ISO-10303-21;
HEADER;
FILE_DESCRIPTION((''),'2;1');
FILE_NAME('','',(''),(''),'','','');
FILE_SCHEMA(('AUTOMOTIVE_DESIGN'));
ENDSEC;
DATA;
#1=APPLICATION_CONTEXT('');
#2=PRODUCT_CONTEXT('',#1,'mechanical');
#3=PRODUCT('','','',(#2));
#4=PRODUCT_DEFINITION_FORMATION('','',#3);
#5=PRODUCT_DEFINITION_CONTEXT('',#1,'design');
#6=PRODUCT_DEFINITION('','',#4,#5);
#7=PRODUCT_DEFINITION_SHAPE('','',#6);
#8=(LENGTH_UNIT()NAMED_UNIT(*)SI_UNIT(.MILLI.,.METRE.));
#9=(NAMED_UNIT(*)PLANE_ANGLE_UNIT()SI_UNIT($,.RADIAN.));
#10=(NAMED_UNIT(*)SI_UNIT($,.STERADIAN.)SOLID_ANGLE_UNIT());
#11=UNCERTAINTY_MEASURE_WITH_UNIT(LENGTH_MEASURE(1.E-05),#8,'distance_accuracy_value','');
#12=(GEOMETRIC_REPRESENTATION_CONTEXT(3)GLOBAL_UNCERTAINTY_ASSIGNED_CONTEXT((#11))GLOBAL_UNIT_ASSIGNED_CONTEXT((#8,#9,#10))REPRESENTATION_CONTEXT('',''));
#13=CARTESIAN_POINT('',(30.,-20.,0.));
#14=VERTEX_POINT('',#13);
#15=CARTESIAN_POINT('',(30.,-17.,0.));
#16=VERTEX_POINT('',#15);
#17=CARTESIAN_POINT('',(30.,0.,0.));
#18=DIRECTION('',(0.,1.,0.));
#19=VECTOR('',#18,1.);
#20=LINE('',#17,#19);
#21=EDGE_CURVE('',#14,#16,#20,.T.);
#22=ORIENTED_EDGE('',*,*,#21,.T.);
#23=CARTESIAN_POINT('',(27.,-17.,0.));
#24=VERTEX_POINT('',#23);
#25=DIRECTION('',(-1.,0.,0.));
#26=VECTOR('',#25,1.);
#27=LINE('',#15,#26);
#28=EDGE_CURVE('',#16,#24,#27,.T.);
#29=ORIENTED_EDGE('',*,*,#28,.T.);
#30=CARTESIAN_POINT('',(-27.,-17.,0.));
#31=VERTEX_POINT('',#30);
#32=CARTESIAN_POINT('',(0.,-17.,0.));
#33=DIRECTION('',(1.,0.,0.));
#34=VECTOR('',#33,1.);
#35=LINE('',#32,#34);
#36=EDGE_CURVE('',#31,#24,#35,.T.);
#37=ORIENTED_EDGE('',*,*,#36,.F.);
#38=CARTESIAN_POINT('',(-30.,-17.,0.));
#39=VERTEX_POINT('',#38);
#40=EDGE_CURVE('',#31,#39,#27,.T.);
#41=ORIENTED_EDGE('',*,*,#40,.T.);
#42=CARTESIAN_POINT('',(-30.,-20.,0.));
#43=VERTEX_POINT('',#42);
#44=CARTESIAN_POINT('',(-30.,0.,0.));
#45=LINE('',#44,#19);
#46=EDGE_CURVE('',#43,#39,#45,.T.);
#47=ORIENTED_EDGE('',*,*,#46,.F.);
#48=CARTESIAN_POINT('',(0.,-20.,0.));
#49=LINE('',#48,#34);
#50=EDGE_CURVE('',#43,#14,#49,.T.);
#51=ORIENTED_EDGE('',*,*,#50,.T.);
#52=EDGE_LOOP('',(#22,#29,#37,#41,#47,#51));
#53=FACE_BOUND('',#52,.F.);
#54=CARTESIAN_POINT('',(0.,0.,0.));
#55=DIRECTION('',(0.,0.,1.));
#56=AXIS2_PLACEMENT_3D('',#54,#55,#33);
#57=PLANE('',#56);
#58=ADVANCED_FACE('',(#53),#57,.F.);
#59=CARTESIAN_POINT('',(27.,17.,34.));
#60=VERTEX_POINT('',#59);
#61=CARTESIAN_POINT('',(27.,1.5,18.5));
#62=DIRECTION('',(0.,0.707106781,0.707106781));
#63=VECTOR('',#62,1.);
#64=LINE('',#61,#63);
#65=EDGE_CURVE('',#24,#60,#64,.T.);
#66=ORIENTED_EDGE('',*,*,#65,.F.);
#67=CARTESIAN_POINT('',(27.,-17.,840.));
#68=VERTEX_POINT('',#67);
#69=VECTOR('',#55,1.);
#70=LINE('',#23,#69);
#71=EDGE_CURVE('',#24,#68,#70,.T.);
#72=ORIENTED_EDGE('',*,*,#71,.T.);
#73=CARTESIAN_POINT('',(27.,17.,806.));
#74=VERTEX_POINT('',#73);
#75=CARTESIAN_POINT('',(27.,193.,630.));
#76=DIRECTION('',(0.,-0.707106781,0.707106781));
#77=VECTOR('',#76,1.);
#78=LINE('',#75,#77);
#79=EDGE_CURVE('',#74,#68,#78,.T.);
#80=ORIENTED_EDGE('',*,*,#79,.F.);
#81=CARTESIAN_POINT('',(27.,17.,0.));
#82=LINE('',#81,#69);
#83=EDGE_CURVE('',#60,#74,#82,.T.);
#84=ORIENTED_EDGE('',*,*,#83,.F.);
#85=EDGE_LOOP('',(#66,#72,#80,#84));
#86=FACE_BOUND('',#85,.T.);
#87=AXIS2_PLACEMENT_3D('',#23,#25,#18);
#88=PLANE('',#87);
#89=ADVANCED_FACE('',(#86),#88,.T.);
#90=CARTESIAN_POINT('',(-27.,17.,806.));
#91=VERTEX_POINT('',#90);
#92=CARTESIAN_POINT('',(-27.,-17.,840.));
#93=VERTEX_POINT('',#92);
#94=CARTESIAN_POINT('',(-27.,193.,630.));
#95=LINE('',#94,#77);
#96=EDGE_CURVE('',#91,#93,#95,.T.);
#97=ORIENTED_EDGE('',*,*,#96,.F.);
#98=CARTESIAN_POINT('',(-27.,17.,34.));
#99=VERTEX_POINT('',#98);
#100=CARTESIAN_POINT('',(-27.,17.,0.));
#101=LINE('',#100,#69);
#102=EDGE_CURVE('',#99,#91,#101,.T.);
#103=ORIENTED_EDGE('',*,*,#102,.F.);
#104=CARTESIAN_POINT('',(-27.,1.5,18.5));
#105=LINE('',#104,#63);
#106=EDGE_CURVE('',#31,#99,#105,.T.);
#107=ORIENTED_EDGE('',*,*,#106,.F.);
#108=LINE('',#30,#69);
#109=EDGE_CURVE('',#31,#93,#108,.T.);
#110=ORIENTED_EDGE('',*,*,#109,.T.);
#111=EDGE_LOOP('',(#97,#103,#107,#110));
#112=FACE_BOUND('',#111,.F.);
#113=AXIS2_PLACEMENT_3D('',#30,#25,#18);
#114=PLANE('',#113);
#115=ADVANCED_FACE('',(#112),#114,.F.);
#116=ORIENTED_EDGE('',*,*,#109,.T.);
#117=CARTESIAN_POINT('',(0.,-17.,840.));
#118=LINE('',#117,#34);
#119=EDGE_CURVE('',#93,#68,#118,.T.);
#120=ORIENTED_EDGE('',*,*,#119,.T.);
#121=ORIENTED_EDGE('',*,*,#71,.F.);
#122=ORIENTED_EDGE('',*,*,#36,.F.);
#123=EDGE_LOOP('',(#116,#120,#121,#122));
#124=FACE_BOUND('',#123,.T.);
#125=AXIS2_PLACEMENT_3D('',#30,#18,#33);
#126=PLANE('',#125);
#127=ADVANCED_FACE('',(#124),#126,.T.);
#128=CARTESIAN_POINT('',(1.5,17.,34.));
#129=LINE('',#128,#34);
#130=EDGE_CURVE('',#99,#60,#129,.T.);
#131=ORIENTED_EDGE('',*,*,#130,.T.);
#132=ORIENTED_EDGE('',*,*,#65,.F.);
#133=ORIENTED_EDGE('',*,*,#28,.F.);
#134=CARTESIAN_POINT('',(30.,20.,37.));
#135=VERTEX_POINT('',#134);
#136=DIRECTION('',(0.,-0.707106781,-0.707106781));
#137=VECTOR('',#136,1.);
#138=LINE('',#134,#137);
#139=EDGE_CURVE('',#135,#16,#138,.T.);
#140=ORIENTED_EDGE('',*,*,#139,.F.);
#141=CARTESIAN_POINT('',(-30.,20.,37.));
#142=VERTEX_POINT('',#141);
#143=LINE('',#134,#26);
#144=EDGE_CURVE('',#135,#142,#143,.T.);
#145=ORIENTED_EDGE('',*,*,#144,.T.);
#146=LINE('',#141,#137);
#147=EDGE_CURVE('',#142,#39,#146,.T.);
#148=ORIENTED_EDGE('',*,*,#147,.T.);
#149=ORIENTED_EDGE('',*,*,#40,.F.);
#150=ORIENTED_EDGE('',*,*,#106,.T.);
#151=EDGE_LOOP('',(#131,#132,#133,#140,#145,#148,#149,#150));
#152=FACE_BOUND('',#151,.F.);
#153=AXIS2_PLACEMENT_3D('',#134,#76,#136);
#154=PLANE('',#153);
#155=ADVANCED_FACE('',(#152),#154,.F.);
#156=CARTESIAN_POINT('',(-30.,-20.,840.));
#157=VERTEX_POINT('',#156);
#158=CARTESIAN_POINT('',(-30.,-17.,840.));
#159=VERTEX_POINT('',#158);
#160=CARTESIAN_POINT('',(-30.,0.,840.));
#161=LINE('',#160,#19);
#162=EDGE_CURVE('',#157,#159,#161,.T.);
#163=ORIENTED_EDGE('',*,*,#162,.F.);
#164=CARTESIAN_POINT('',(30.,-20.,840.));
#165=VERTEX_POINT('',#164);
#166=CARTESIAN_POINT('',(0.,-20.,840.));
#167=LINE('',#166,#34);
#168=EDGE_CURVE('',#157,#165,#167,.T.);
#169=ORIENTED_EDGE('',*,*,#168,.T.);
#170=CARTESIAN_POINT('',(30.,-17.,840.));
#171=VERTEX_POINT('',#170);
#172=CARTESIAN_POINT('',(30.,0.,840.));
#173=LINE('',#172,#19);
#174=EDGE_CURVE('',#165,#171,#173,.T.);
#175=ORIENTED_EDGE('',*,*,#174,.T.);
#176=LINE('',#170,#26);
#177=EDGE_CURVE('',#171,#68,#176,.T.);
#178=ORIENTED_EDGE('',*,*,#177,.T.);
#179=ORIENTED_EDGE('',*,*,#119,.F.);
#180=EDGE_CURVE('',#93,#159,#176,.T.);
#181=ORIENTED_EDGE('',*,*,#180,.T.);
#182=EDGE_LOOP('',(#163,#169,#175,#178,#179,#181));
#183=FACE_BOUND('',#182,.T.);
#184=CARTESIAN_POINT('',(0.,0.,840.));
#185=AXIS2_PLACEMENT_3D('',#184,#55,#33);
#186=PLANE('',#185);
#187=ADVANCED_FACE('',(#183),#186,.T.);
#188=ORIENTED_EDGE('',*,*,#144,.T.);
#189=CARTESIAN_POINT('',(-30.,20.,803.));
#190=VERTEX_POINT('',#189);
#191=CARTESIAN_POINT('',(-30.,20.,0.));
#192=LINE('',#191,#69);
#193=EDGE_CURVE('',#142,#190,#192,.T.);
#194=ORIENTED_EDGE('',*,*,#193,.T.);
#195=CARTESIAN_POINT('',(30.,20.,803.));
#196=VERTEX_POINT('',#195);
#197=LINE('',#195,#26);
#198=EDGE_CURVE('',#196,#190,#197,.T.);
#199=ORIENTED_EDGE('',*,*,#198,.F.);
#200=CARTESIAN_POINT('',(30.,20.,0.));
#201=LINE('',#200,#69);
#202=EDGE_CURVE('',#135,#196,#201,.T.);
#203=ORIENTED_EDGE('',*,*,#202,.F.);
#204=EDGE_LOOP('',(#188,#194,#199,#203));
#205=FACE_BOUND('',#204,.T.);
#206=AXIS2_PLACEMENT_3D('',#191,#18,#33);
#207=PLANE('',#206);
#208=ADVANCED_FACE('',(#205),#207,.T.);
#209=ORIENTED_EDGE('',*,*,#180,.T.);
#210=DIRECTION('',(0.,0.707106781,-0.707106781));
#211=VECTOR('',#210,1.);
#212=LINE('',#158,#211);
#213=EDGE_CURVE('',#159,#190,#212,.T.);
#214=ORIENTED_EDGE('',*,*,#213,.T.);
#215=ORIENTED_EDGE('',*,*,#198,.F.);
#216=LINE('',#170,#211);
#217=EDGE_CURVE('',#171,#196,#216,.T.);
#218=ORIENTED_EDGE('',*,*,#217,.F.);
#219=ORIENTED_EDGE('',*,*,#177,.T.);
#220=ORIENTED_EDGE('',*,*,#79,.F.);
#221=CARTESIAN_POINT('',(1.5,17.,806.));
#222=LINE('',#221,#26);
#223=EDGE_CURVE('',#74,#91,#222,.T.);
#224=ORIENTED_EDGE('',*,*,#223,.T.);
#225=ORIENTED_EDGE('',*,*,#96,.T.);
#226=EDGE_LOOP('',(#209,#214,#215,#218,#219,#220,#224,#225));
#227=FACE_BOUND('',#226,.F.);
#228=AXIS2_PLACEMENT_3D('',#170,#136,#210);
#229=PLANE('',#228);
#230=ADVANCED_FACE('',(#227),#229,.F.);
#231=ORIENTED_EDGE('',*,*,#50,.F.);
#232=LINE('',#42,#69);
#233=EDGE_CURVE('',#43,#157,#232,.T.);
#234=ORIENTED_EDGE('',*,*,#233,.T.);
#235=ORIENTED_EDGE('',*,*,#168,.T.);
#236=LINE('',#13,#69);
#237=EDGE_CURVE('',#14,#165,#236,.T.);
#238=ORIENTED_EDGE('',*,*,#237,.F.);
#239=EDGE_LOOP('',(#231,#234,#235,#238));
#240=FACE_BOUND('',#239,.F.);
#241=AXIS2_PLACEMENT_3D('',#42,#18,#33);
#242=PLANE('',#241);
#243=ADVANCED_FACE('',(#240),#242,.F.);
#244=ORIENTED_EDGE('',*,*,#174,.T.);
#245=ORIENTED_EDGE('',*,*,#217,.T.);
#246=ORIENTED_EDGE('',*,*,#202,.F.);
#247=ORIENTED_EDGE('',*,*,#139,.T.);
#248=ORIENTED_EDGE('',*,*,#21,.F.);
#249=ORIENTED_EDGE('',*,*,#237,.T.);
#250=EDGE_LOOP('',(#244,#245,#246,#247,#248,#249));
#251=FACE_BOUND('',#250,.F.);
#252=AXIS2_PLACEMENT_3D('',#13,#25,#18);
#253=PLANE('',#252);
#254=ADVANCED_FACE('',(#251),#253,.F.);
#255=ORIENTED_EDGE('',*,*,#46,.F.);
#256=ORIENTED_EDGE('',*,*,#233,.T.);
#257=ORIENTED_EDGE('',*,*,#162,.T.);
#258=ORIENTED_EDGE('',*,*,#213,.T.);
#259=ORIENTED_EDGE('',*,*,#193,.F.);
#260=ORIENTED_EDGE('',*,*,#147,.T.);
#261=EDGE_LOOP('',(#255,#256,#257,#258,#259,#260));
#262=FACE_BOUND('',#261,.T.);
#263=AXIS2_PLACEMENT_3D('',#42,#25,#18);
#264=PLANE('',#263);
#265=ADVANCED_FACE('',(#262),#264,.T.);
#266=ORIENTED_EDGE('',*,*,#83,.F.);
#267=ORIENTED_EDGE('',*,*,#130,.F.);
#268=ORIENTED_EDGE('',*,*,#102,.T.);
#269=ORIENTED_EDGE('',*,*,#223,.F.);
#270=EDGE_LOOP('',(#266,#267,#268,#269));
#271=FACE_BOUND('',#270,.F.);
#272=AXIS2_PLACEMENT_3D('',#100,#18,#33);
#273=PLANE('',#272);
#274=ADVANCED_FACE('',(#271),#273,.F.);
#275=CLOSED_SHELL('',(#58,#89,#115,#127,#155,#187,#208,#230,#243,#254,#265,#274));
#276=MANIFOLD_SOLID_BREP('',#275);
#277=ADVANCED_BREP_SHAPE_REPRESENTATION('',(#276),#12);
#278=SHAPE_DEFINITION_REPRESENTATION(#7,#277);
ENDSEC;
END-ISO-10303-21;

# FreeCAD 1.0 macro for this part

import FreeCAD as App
import Part
import Sketcher

V = App.Vector


def add_polygon(sketch, points):
    """Adds a closed chain of lines whose ends are joined by coincident constraints."""
    first, n = sketch.GeometryCount, len(points)
    for a, b in zip(points, points[1:] + points[:1]):
        sketch.addGeometry(Part.LineSegment(App.Vector(*a, 0), App.Vector(*b, 0)), False)
    for i in range(n):
        sketch.addConstraint(Sketcher.Constraint("Coincident", first + i, 2, first + (i + 1) % n, 1))

doc = App.newDocument("Part")
body = doc.addObject("PartDesign::Body", "Body")

sketch1 = body.newObject("Sketcher::SketchObject", "Sketch")
sketch1.AttachmentSupport = (doc.getObject("XY_Plane"), [""])
sketch1.MapMode = "FlatFace"
add_polygon(sketch1, [(-30, 20), (-30, -20), (30, -20), (30, 20)])
add_polygon(sketch1, [(27, -17), (-27, -17), (-27, 17), (27, 17)])
sketch1.addConstraint([
    Sketcher.Constraint("Vertical", 0),
    Sketcher.Constraint("Horizontal", 1),
    Sketcher.Constraint("Vertical", 2),
    Sketcher.Constraint("Horizontal", 3),
    Sketcher.Constraint("Horizontal", 4),
    Sketcher.Constraint("Vertical", 5),
    Sketcher.Constraint("Horizontal", 6),
    Sketcher.Constraint("Vertical", 7),
    Sketcher.Constraint("Symmetric", 0, 2, 2, 2, -1, 1),
    Sketcher.Constraint("Symmetric", 4, 2, 6, 2, -1, 1),
    Sketcher.Constraint("DistanceX", 1, 1, 1, 2, 60.0),
    Sketcher.Constraint("DistanceX", 4, 2, 4, 1, 54.0),
    Sketcher.Constraint("DistanceY", 0, 2, 0, 1, 40.0),
    Sketcher.Constraint("DistanceY", 5, 1, 5, 2, 34.0),
])
pad1 = body.newObject("PartDesign::Pad", "Pad")
pad1.Profile = sketch1
pad1.Length = 840

sketch2 = body.newObject("Sketcher::SketchObject", "Sketch001")
sketch2.AttachmentSupport = (doc.getObject("YZ_Plane"), [""])
sketch2.MapMode = "FlatFace"
sketch2.AttachmentOffset = App.Placement(V(0, 0, 30), App.Rotation())
add_polygon(sketch2, [(20, 840), (-17, 840), (20, 803)])
add_polygon(sketch2, [(-17, 0), (20, 0), (20, 37)])
sketch2.addConstraint([
    Sketcher.Constraint("Horizontal", 0),
    Sketcher.Constraint("Vertical", 2),
    Sketcher.Constraint("Horizontal", 3),
    Sketcher.Constraint("Vertical", 4),
    Sketcher.Constraint("PointOnObject", 3, 2, -1),
    Sketcher.Constraint("Perpendicular", 1, 5),
    Sketcher.Constraint("Vertical", 2, 2, 3, 2),
    Sketcher.Constraint("Vertical", 0, 2, 5, 2),
    Sketcher.Constraint("Equal", 3, 2),
    Sketcher.Constraint("DistanceX", 0, 2, 0, 1, 37.0),
    Sketcher.Constraint("DistanceX", 0, 2, -1, 1, 17.0),
    Sketcher.Constraint("DistanceY", -1, 1, 0, 2, 840.0),
])
pocket1 = body.newObject("PartDesign::Pocket", "Pocket")
pocket1.Profile = sketch2
pocket1.Length = 60

sketch3 = body.newObject("Sketcher::SketchObject", "Sketch002")
sketch3.AttachmentSupport = (doc.getObject("YZ_Plane"), [""])
sketch3.MapMode = "FlatFace"
sketch3.AttachmentOffset = App.Placement(V(0, 0, 30), App.Rotation())
add_polygon(sketch3, [(20, 0), (20, 37), (-17, 0)])
sketch3.addConstraint([
    Sketcher.Constraint("Vertical", 0),
    Sketcher.Constraint("Horizontal", 2),
    Sketcher.Constraint("PointOnObject", 1, 2, -1),
    Sketcher.Constraint("Equal", 2, 0),
    Sketcher.Constraint("DistanceX", 2, 1, 2, 2, 37.0),
    Sketcher.Constraint("DistanceX", -1, 1, 0, 2, 20.0),
])
pocket2 = body.newObject("PartDesign::Pocket", "Pocket001")
pocket2.Profile = sketch3
pocket2.Length = 60

doc.recompute()
